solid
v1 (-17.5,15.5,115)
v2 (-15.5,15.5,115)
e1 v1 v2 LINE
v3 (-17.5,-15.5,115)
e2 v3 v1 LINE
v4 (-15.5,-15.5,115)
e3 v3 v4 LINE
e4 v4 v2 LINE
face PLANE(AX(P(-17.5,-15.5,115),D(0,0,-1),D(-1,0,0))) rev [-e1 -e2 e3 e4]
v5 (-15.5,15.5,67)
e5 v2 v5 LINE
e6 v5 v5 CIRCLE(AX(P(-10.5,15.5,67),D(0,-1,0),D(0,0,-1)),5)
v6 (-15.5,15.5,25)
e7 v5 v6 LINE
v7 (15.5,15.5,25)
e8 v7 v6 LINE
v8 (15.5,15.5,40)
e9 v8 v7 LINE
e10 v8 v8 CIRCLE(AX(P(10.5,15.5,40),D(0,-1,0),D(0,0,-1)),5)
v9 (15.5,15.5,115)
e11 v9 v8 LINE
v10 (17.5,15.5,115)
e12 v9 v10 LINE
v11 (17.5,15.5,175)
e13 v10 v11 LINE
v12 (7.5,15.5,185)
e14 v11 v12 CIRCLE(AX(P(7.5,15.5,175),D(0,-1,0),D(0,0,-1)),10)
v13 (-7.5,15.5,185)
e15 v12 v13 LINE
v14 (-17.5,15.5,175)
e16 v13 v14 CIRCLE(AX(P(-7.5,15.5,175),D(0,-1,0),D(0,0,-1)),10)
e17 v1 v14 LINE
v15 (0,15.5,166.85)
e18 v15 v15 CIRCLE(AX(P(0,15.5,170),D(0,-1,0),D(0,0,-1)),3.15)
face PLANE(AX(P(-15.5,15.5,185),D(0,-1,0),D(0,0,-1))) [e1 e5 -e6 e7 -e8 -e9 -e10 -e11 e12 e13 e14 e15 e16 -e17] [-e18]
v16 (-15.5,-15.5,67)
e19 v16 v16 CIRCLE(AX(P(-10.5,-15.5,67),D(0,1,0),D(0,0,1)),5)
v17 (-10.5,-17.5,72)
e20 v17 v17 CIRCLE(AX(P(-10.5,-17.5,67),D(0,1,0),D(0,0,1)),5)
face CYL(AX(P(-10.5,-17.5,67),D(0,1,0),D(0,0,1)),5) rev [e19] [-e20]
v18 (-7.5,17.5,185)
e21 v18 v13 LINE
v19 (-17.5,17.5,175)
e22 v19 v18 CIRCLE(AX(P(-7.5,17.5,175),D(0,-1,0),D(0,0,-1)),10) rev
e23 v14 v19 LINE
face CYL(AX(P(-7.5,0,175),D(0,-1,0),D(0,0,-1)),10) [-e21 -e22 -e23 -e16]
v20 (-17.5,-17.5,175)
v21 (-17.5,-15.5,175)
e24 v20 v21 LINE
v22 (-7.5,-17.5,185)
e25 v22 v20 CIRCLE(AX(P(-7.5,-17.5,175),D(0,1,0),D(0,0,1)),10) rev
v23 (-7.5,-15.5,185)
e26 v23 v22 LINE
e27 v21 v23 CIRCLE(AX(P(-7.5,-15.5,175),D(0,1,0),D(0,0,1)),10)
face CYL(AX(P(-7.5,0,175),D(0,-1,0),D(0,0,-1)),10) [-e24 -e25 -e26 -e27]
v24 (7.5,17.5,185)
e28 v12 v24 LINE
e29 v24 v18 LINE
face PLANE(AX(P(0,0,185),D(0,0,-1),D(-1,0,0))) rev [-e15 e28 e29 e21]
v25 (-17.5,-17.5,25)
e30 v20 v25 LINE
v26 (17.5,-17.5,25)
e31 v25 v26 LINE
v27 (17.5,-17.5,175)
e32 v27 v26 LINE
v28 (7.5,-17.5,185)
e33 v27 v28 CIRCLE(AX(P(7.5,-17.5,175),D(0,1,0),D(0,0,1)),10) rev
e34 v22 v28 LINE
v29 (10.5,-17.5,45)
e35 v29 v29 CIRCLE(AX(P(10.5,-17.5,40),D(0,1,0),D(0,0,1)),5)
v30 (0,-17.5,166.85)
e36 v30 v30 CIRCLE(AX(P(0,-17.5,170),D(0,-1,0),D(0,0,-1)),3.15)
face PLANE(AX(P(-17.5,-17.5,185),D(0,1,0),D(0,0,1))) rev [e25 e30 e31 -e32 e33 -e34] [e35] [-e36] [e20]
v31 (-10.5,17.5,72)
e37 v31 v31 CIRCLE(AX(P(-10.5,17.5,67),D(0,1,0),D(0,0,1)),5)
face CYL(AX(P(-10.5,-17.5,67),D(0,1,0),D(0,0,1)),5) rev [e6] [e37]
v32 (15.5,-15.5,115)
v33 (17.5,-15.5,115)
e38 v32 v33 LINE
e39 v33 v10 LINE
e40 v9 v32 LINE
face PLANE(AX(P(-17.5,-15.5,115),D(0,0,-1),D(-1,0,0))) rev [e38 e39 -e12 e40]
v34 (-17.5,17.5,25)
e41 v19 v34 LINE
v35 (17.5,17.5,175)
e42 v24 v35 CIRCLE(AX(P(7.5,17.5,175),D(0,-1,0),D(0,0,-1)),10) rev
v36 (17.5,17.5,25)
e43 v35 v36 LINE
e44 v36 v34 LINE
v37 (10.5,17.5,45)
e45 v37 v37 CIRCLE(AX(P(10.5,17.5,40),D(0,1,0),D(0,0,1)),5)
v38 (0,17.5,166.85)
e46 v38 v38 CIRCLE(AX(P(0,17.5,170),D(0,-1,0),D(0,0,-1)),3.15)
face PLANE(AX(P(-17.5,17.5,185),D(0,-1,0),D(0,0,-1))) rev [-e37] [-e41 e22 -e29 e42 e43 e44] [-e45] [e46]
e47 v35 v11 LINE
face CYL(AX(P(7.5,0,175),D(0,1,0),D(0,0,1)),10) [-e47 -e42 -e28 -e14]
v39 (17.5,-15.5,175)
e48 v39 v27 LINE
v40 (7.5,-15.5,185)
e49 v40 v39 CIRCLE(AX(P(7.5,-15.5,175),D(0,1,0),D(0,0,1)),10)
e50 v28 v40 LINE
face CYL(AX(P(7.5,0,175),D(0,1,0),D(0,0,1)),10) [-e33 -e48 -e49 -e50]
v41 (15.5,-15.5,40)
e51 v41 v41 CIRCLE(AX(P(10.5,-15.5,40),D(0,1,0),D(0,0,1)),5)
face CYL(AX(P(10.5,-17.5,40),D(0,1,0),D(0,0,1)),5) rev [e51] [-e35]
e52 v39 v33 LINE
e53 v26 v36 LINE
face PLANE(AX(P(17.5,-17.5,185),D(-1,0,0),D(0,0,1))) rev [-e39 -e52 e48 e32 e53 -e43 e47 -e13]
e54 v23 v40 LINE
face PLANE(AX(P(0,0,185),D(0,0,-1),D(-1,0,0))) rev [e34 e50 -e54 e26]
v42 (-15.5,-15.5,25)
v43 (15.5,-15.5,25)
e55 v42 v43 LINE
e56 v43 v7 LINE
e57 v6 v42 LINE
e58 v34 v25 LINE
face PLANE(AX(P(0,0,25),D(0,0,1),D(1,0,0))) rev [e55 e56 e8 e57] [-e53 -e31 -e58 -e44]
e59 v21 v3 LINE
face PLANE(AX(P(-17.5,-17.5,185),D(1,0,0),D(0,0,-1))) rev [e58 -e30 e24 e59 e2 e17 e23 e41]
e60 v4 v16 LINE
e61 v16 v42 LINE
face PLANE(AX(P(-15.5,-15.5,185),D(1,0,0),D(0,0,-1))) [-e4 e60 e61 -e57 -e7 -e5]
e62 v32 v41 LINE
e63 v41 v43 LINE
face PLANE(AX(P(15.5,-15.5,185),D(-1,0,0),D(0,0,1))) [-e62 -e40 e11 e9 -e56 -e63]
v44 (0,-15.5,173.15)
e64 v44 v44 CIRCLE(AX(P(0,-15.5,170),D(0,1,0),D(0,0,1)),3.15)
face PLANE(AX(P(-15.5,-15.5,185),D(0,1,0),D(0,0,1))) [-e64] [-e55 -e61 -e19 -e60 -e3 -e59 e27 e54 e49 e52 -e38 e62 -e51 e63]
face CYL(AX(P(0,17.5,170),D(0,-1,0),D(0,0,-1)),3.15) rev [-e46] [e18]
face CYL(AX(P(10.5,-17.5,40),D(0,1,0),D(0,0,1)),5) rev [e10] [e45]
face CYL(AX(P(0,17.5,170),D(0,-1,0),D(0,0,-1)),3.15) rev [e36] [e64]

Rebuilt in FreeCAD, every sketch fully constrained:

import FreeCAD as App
import Part
import Sketcher

V = App.Vector


def edges_at(feature, points):
    """Names of the edges that pass closest to the given points."""
    edges = feature.Shape.Edges
    near = lambda p: min(range(len(edges)), key=lambda i: edges[i].distToShape(Part.Vertex(*p))[0])
    return sorted({f"Edge{near(p) + 1}" for p in points})


def add_polygon(sketch, points):
    """Adds a closed chain of lines whose ends are joined by coincident constraints."""
    first, n = sketch.GeometryCount, len(points)
    for a, b in zip(points, points[1:] + points[:1]):
        sketch.addGeometry(Part.LineSegment(App.Vector(*a, 0), App.Vector(*b, 0)), False)
    for i in range(n):
        sketch.addConstraint(Sketcher.Constraint("Coincident", first + i, 2, first + (i + 1) % n, 1))

doc = App.newDocument("Part")
params = doc.addObject("Spreadsheet::Sheet", "Params")
for row, (alias, value) in enumerate([
    ("sketch1_width", "35 mm"),
    ("sketch1_width2", "31 mm"),
    ("pad1_length", "185 mm"),
    ("sketch2_width", "31 mm"),
    ("sketch2_height", "70 mm"),
    ("sketch3_diameter", "6.3 mm"),
    ("fillet_radius", "10 mm"),
    ("pocket3_length", "25 mm"),
    ("sketch5_diameter", "10 mm"),
], start=1):
    params.set(f"A{row}", alias)
    params.set(f"B{row}", "=" + value)
    params.setAlias(f"B{row}", alias)

body = doc.addObject("PartDesign::Body", "Body")

sketch1 = body.newObject("Sketcher::SketchObject", "Sketch")
sketch1.AttachmentSupport = (doc.getObject("XY_Plane"), [""])
sketch1.MapMode = "FlatFace"
add_polygon(sketch1, [(-18, 18), (-18, -18), (18, -18), (18, 18)])
add_polygon(sketch1, [(16, -16), (-16, -16), (-16, 16), (16, 16)])
sketch1.addConstraint(Sketcher.Constraint("Vertical", 0))
sketch1.addConstraint(Sketcher.Constraint("Horizontal", 1))
sketch1.addConstraint(Sketcher.Constraint("Vertical", 2))
sketch1.addConstraint(Sketcher.Constraint("Horizontal", 3))
sketch1.addConstraint(Sketcher.Constraint("Horizontal", 4))
sketch1.addConstraint(Sketcher.Constraint("Vertical", 5))
sketch1.addConstraint(Sketcher.Constraint("Horizontal", 6))
sketch1.addConstraint(Sketcher.Constraint("Vertical", 7))
sketch1.addConstraint(Sketcher.Constraint("Symmetric", 0, 2, 2, 2, -1, 1))
sketch1.addConstraint(Sketcher.Constraint("Symmetric", 4, 2, 6, 2, -1, 1))
sketch1.addConstraint(Sketcher.Constraint("Equal", 3, 0))
sketch1.addConstraint(Sketcher.Constraint("Equal", 6, 5))
sketch1.addConstraint(Sketcher.Constraint("DistanceX", 1, 1, 1, 2, 35.0))
sketch1.addConstraint(Sketcher.Constraint("DistanceX", 4, 2, 4, 1, 31.0))
sketch1.setExpression("Constraints[20]", "Params.sketch1_width")
sketch1.setExpression("Constraints[21]", "Params.sketch1_width2")
pad1 = body.newObject("PartDesign::Pad", "Pad")
pad1.Profile = sketch1
pad1.setExpression("Length", "Params.pad1_length")

sketch2 = body.newObject("Sketcher::SketchObject", "Sketch001")
sketch2.AttachmentSupport = (doc.getObject("YZ_Plane"), [""])
sketch2.MapMode = "FlatFace"
sketch2.AttachmentOffset = App.Placement(V(0, 0, 17.5), App.Rotation())
add_polygon(sketch2, [(16, 185), (-16, 185), (-16, 115), (16, 115)])
sketch2.addConstraint(Sketcher.Constraint("Horizontal", 0))
sketch2.addConstraint(Sketcher.Constraint("Vertical", 1))
sketch2.addConstraint(Sketcher.Constraint("Horizontal", 2))
sketch2.addConstraint(Sketcher.Constraint("Vertical", 3))
sketch2.addConstraint(Sketcher.Constraint("DistanceX", 0, 2, 0, 1, 31.0))
sketch2.addConstraint(Sketcher.Constraint("DistanceY", 1, 2, 1, 1, 70.0))
sketch2.addConstraint(Sketcher.Constraint("DistanceY", -1, 1, 0, 2, 185.0))
sketch2.addConstraint(Sketcher.Constraint("DistanceX", 0, 2, -1, 1, 15.5))
sketch2.setExpression("Constraints[8]", "Params.sketch2_width")
sketch2.setExpression("Constraints[9]", "Params.sketch2_height")
pocket1 = body.newObject("PartDesign::Pocket", "Pocket")
pocket1.Profile = sketch2
pocket1.Type = "ThroughAll"

sketch3 = body.newObject("Sketcher::SketchObject", "Sketch002")
sketch3.AttachmentSupport = (doc.getObject("XZ_Plane"), [""])
sketch3.MapMode = "FlatFace"
sketch3.AttachmentOffset = App.Placement(V(0, 0, 17.5), App.Rotation())
sketch3.addGeometry(Part.Circle(V(0, 170, 0), V(0, 0, 1), 3.1), False)
sketch3.addConstraint(Sketcher.Constraint("PointOnObject", 0, 3, -2))
sketch3.addConstraint(Sketcher.Constraint("Diameter", 0, 6.3))
sketch3.addConstraint(Sketcher.Constraint("DistanceY", -1, 1, 0, 3, 170.0))
sketch3.setExpression("Constraints[1]", "Params.sketch3_diameter")
pocket2 = body.newObject("PartDesign::Pocket", "Pocket001")
pocket2.Profile = sketch3
pocket2.Type = "ThroughAll"
doc.recompute()

fillet = body.newObject("PartDesign::Fillet", "Fillet")
fillet.Base = (pocket2, edges_at(pocket2, [
    (-17.5, 16.5, 185),
    (-17.5, -16.5, 185),
    (17.5, 16.5, 185),
    (17.5, -16.5, 185),
]))
fillet.setExpression("Radius", "Params.fillet_radius")

sketch4 = body.newObject("Sketcher::SketchObject", "Sketch003")
sketch4.AttachmentSupport = (doc.getObject("XY_Plane"), [""])
sketch4.MapMode = "FlatFace"
add_polygon(sketch4, [(20, 19), (20, -19), (-20, -19), (-20, 19)])
sketch4.addConstraint(Sketcher.Constraint("Vertical", 0))
sketch4.addConstraint(Sketcher.Constraint("Horizontal", 1))
sketch4.addConstraint(Sketcher.Constraint("Vertical", 2))
sketch4.addConstraint(Sketcher.Constraint("Horizontal", 3))
sketch4.addConstraint(Sketcher.Constraint("Symmetric", 0, 2, 2, 2, -1, 1))
sketch4.addConstraint(Sketcher.Constraint("DistanceX", 1, 2, 1, 1, 39.330922))
sketch4.addConstraint(Sketcher.Constraint("DistanceY", 0, 2, 0, 1, 37.025641))
pocket3 = body.newObject("PartDesign::Pocket", "Pocket002")
pocket3.Profile = sketch4
pocket3.setExpression("Length", "Params.pocket3_length")
pocket3.Reversed = True

sketch5 = body.newObject("Sketcher::SketchObject", "Sketch004")
sketch5.AttachmentSupport = (doc.getObject("XZ_Plane"), [""])
sketch5.MapMode = "FlatFace"
sketch5.AttachmentOffset = App.Placement(V(0, 0, -17.5), App.Rotation())
sketch5.addGeometry(Part.Circle(V(10, 40, 0), V(0, 0, 1), 5), False)
sketch5.addGeometry(Part.Circle(V(-10, 67, 0), V(0, 0, 1), 5), False)
sketch5.addConstraint(Sketcher.Constraint("Equal", 0, 1))
sketch5.addConstraint(Sketcher.Constraint("Diameter", 0, 10.0))
sketch5.addConstraint(Sketcher.Constraint("DistanceY", -1, 1, 0, 3, 40.0))
sketch5.addConstraint(Sketcher.Constraint("DistanceY", -1, 1, 1, 3, 67.0))
sketch5.addConstraint(Sketcher.Constraint("DistanceX", 1, 3, 0, 3, 21.0))
sketch5.addConstraint(Sketcher.Constraint("DistanceX", -1, 1, 0, 3, 10.5))
sketch5.setExpression("Constraints[1]", "Params.sketch5_diameter")
pocket4 = body.newObject("PartDesign::Pocket", "Pocket003")
pocket4.Profile = sketch5
pocket4.Type = "ThroughAll"
pocket4.Reversed = True

doc.recompute()
